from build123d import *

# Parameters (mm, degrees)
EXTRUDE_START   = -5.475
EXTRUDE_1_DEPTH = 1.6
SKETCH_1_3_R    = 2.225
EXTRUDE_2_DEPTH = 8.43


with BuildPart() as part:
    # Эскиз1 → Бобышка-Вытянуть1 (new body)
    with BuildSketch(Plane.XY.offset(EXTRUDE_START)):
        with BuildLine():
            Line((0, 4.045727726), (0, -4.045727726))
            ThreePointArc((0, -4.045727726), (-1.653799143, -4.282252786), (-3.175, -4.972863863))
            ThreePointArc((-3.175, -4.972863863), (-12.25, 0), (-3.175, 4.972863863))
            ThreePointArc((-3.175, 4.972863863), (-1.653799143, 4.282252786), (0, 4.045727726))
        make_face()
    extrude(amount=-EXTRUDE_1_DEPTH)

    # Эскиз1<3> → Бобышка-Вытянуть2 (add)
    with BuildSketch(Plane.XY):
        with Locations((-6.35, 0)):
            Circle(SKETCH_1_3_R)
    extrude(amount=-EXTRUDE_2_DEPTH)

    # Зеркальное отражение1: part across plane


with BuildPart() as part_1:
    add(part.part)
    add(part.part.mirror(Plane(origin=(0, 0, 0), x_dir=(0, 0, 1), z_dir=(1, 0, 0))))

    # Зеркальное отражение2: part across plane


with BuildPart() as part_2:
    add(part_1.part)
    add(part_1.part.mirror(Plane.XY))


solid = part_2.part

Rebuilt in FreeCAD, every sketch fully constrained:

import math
import FreeCAD as App
import Part
import Sketcher
from FreeCAD import Vector

doc = App.newDocument("Part")
body = doc.addObject("PartDesign::Body", "Body")

# Sketch on XY plane
sketch1 = body.newObject("Sketcher::SketchObject", "Sketch")
sketch1.AttachmentSupport = (doc.getObject("XY_Plane"), [""])
sketch1.MapMode = "FlatFace"
sketch1.AttachmentOffset = App.Placement(Vector(0, 0, -5.475), App.Rotation())
sketch1.addGeometry(Part.LineSegment(Vector(0, -4.045728, 0), Vector(0, 4.045728, 0)), False)
sketch1.addGeometry(Part.ArcOfCircle(Part.Circle(Vector(0, 9.945728, 0), Vector(0, 0, 1), 5.9), math.radians(-122.556811), math.radians(-90)), False)
sketch1.addGeometry(Part.ArcOfCircle(Part.Circle(Vector(-6.35, 0, 0), Vector(0, 0, 1), 5.9), math.radians(57.443189), math.radians(302.556811)), False)
sketch1.addGeometry(Part.ArcOfCircle(Part.Circle(Vector(0, -9.945728, 0), Vector(0, 0, 1), 5.9), math.radians(90), math.radians(122.556811)), False)
sketch1.addConstraint(Sketcher.Constraint("Coincident", 0, 2, 1, 2))
sketch1.addConstraint(Sketcher.Constraint("Tangent", 1, 1, 2, 1))
sketch1.addConstraint(Sketcher.Constraint("Tangent", 2, 2, 3, 2))
sketch1.addConstraint(Sketcher.Constraint("Coincident", 3, 1, 0, 1))
sketch1.addConstraint(Sketcher.Constraint("Vertical", 0))
sketch1.addConstraint(Sketcher.Constraint("Equal", 1, 2))
sketch1.addConstraint(Sketcher.Constraint("Equal", 2, 3))
sketch1.addConstraint(Sketcher.Constraint("Symmetric", 1, 3, 3, 3, -1, 1))
sketch1.addConstraint(Sketcher.Constraint("PointOnObject", 1, 3, -2))
sketch1.addConstraint(Sketcher.Constraint("PointOnObject", 0, 2, -2))
sketch1.addConstraint(Sketcher.Constraint("Radius", 1, 5.9))
sketch1.addConstraint(Sketcher.Constraint("DistanceX", 2, 3, -1, 1, 6.35))
pad1 = body.newObject("PartDesign::Pad", "Pad")
pad1.Profile = sketch1
pad1.Length = 1.6
pad1.Reversed = True

# Sketch on XY plane
sketch2 = body.newObject("Sketcher::SketchObject", "Sketch001")
sketch2.AttachmentSupport = (doc.getObject("XY_Plane"), [""])
sketch2.MapMode = "FlatFace"
sketch2.addGeometry(Part.Circle(Vector(-6.35, 0, 0), Vector(0, 0, 1), 2.225), False)
sketch2.addConstraint(Sketcher.Constraint("PointOnObject", 0, 3, -1))
sketch2.addConstraint(Sketcher.Constraint("Diameter", 0, 4.45))
sketch2.addConstraint(Sketcher.Constraint("DistanceX", 0, 3, -1, 1, 6.35))
pad2 = body.newObject("PartDesign::Pad", "Pad001")
pad2.Profile = sketch2
pad2.Length = 8.43
pad2.Reversed = True
body2 = doc.addObject("PartDesign::Body", "Body001")
doc.recompute()

body2.BaseFeature = body
doc.recompute()

mirroring = doc.addObject("Part::Mirroring", "Mirroring")
mirroring.Source = body
mirroring.Base = Vector(0, 0, 0)
mirroring.Normal = Vector(1, 0, 0)
body3 = doc.addObject("PartDesign::Body", "Body002")
body3.BaseFeature = mirroring
boolean = body2.newObject("PartDesign::Boolean", "Boolean")
boolean.Type = "Fuse"
boolean.addObjects([body3])
doc.recompute()
body4 = doc.addObject("PartDesign::Body", "Body003")
doc.recompute()

body4.BaseFeature = body2
doc.recompute()

mirroring2 = doc.addObject("Part::Mirroring", "Mirroring001")
mirroring2.Source = body2
mirroring2.Base = Vector(0, 0, 0)
mirroring2.Normal = Vector(0, 0, 1)
body5 = doc.addObject("PartDesign::Body", "Body004")
body5.BaseFeature = mirroring2
boolean2 = body4.newObject("PartDesign::Boolean", "Boolean001")
boolean2.Type = "Fuse"
boolean2.addObjects([body5])
doc.recompute()
mirroring.Visibility = False
mirroring2.Visibility = False

doc.recompute()
